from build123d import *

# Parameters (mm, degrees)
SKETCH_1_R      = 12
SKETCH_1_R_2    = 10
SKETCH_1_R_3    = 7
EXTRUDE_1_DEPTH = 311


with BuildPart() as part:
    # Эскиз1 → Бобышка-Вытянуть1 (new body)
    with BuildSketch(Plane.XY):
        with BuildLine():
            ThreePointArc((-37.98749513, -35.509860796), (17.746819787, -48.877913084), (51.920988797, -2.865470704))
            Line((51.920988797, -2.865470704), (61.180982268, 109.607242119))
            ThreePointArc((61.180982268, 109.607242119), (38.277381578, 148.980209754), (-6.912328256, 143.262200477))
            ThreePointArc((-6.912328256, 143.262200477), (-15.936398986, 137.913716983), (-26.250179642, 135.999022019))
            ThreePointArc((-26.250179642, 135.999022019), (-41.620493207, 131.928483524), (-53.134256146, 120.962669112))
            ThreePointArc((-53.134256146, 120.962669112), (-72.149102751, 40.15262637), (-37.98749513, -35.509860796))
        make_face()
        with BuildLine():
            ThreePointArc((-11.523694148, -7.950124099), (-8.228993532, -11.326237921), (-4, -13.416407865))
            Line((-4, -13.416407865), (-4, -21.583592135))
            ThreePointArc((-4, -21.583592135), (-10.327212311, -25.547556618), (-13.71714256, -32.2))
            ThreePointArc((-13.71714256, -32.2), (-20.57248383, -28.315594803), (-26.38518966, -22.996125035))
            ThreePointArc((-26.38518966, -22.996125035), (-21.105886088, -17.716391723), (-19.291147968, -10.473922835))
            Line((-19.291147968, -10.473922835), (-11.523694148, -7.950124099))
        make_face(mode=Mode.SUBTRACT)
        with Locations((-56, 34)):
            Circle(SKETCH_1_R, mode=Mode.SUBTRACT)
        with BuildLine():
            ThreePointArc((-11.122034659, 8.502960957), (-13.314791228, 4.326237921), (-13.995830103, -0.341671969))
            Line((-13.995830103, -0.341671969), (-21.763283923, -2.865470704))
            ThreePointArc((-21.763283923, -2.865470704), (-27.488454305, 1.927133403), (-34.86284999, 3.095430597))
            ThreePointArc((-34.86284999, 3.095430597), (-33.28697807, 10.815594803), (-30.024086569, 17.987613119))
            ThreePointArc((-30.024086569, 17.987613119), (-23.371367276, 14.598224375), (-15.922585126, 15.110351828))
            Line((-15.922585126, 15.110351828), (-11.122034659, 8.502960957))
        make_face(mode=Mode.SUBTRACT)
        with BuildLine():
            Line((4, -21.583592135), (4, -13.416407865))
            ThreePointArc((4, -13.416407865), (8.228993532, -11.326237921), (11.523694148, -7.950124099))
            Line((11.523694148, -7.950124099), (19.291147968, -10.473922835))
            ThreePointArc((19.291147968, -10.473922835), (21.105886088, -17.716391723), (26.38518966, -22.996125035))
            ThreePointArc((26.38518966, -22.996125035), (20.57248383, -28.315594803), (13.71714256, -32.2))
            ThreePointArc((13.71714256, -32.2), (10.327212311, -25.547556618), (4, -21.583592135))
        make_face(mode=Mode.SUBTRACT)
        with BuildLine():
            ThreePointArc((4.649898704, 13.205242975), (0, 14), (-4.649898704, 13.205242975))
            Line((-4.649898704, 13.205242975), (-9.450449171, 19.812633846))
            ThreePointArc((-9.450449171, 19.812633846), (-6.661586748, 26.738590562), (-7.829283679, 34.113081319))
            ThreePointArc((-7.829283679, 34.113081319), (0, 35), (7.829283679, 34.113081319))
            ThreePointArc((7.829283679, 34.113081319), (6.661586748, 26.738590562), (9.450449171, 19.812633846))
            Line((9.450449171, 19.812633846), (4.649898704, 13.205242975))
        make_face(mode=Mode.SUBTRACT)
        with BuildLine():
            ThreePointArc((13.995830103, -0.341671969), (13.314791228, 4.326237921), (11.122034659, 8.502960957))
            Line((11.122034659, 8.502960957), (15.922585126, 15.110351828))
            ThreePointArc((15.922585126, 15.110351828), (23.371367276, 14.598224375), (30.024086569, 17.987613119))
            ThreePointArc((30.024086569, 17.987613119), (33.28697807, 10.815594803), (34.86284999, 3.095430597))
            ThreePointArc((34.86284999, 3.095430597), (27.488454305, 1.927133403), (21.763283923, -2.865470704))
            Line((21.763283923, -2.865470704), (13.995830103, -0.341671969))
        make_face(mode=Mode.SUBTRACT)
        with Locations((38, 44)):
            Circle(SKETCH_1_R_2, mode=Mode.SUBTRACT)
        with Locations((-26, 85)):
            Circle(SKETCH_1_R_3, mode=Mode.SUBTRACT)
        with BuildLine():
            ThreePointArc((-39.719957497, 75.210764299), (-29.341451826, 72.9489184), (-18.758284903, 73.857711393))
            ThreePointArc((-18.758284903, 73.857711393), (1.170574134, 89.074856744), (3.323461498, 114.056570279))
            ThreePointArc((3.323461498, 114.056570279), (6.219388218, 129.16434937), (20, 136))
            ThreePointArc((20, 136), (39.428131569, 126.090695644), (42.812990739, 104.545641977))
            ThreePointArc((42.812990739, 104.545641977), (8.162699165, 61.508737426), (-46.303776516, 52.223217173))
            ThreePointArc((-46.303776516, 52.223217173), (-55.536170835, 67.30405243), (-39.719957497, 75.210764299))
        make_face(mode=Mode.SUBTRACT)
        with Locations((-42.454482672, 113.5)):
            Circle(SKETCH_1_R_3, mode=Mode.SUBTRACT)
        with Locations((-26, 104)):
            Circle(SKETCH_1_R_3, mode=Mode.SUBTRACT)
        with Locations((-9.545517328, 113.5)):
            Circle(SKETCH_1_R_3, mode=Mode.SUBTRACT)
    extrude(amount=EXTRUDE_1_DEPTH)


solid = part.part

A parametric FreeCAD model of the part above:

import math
import FreeCAD as App
import Part
import Sketcher
Q = App.Units.Quantity

doc = App.newDocument("Part")
body = doc.addObject("PartDesign::Body", "Body")

sketch1 = body.newObject("Sketcher::SketchObject", "Sketch")
sketch1.AttachmentSupport = (doc.getObject("XY_Plane"), [""])
sketch1.MapMode = "FlatFace"
sketch1.addGeometry([
    Part.ArcOfCircle(Part.Circle(App.Vector(0, 0, 0), App.Vector(0, 0, 1), 52), math.radians(-137), math.radians(-3)),
    Part.LineSegment(App.Vector(52, -3, 0), App.Vector(61, 110, 0)),
    Part.ArcOfCircle(Part.Circle(App.Vector(20, 112, 0), App.Vector(0, 0, 1), 41), math.radians(-3), math.radians(131)),
    Part.ArcOfCircle(Part.Circle(App.Vector(-26, 166, 0), App.Vector(0, 0, 1), 30), math.radians(-90), math.radians(-49)),
    Part.ArcOfCircle(Part.Circle(App.Vector(-26, 104, 0), App.Vector(0, 0, 1), 32), math.radians(90), math.radians(148)),
    Part.ArcOfCircle(Part.Circle(App.Vector(56, 53, 0), App.Vector(0, 0, 1), 129), math.radians(148), math.radians(223)),
    Part.LineSegment(App.Vector(-19, -10, 0), App.Vector(-12, -8, 0)),
    Part.ArcOfCircle(Part.Circle(App.Vector(0, 0, 0), App.Vector(0, 0, 1), 14), math.radians(-145), math.radians(-107)),
    Part.LineSegment(App.Vector(-4, -13, 0), App.Vector(-4, -22, 0)),
    Part.ArcOfCircle(Part.Circle(App.Vector(0, -35, 0), App.Vector(0, 0, 1), 14), math.radians(107), math.radians(168)),
    Part.ArcOfCircle(Part.Circle(App.Vector(0, 0, 0), App.Vector(0, 0, 1), 35), math.radians(-139), math.radians(-113)),
    Part.ArcOfCircle(Part.Circle(App.Vector(-33, -11, 0), App.Vector(0, 0, 1), 14), math.radians(-60), math.radians(1)),
    Part.LineSegment(App.Vector(-16, 15, 0), App.Vector(-11, 9, 0)),
    Part.ArcOfCircle(Part.Circle(App.Vector(0, 0, 0), App.Vector(0, 0, 1), 14), math.radians(143), math.radians(181)),
    Part.LineSegment(App.Vector(-14, 0, 0), App.Vector(-22, -3, 0)),
    Part.ArcOfCircle(Part.Circle(App.Vector(-33, -11, 0), App.Vector(0, 0, 1), 14), math.radians(35), math.radians(96)),
    Part.ArcOfCircle(Part.Circle(App.Vector(0, 0, 0), App.Vector(0, 0, 1), 35), math.radians(149), math.radians(175)),
    Part.ArcOfCircle(Part.Circle(App.Vector(-21, 28, 0), App.Vector(0, 0, 1), 14), math.radians(-132), math.radians(-71)),
    Part.Circle(App.Vector(-56, 34, 0), App.Vector(0, 0, 1), 12),
    Part.ArcOfCircle(Part.Circle(App.Vector(0, -35, 0), App.Vector(0, 0, 1), 14), math.radians(12), math.radians(73)),
    Part.LineSegment(App.Vector(4, -22, 0), App.Vector(4, -13, 0)),
    Part.ArcOfCircle(Part.Circle(App.Vector(0, 0, 0), App.Vector(0, 0, 1), 14), math.radians(-73), math.radians(-35)),
    Part.LineSegment(App.Vector(12, -8, 0), App.Vector(19, -10, 0)),
    Part.ArcOfCircle(Part.Circle(App.Vector(33, -11, 0), App.Vector(0, 0, 1), 14), math.radians(179), math.radians(240)),
    Part.ArcOfCircle(Part.Circle(App.Vector(0, 0, 0), App.Vector(0, 0, 1), 35), math.radians(-67), math.radians(-41)),
    Part.LineSegment(App.Vector(22, -3, 0), App.Vector(14, 0, 0)),
    Part.ArcOfCircle(Part.Circle(App.Vector(0, 0, 0), App.Vector(0, 0, 1), 14), math.radians(-1), math.radians(37)),
    Part.LineSegment(App.Vector(11, 9, 0), App.Vector(16, 15, 0)),
    Part.ArcOfCircle(Part.Circle(App.Vector(21, 28, 0), App.Vector(0, 0, 1), 14), math.radians(-109), math.radians(-48)),
    Part.ArcOfCircle(Part.Circle(App.Vector(0, 0, 0), App.Vector(0, 0, 1), 35), math.radians(5), math.radians(31)),
    Part.ArcOfCircle(Part.Circle(App.Vector(33, -11, 0), App.Vector(0, 0, 1), 14), math.radians(84), math.radians(145)),
    Part.LineSegment(App.Vector(9, 20, 0), App.Vector(5, 13, 0)),
    Part.ArcOfCircle(Part.Circle(App.Vector(0, 0, 0), App.Vector(0, 0, 1), 14), math.radians(71), math.radians(109)),
    Part.LineSegment(App.Vector(-5, 13, 0), App.Vector(-9, 20, 0)),
    Part.ArcOfCircle(Part.Circle(App.Vector(-21, 28, 0), App.Vector(0, 0, 1), 14), math.radians(-37), math.radians(24)),
    Part.ArcOfCircle(Part.Circle(App.Vector(0, 0, 0), App.Vector(0, 0, 1), 35), math.radians(77), math.radians(103)),
    Part.ArcOfCircle(Part.Circle(App.Vector(21, 28, 0), App.Vector(0, 0, 1), 14), math.radians(156), math.radians(217)),
    Part.Circle(App.Vector(38, 44, 0), App.Vector(0, 0, 1), 10),
    Part.Circle(App.Vector(-26, 85, 0), App.Vector(0, 0, 1), 7),
    Part.Circle(App.Vector(-42, 114, 0), App.Vector(0, 0, 1), 7),
    Part.Circle(App.Vector(-26, 104, 0), App.Vector(0, 0, 1), 7),
    Part.ArcOfCircle(Part.Circle(App.Vector(-44, 64, 0), App.Vector(0, 0, 1), 12), math.radians(69), math.radians(259)),
    Part.ArcOfCircle(Part.Circle(App.Vector(-27, 108, 0), App.Vector(0, 0, 1), 36), math.radians(-111), math.radians(-76)),
    Part.ArcOfCircle(Part.Circle(App.Vector(-26, 104, 0), App.Vector(0, 0, 1), 31), math.radians(-76), math.radians(19)),
    Part.ArcOfCircle(Part.Circle(App.Vector(20, 119, 0), App.Vector(0, 0, 1), 17), math.radians(90), math.radians(196)),
    Part.ArcOfCircle(Part.Circle(App.Vector(20, 112, 0), App.Vector(0, 0, 1), 24), math.radians(-18), math.radians(90)),
    Part.ArcOfCircle(Part.Circle(App.Vector(-31, 129, 0), App.Vector(0, 0, 1), 78), math.radians(-101), math.radians(-18)),
    Part.Circle(App.Vector(-10, 114, 0), App.Vector(0, 0, 1), 7),
], False)
sketch1.addConstraint([
    Sketcher.Constraint("Coincident", 0, 2, 1, 1),
    Sketcher.Constraint("Coincident", 1, 2, 2, 1),
    Sketcher.Constraint("Tangent", 2, 2, 3, 2),
    Sketcher.Constraint("Tangent", 3, 1, 4, 1),
    Sketcher.Constraint("Tangent", 4, 2, 5, 1),
    Sketcher.Constraint("Tangent", 5, 2, 0, 1),
    Sketcher.Constraint("Coincident", 6, 2, 7, 1),
    Sketcher.Constraint("Coincident", 7, 2, 8, 1),
    Sketcher.Constraint("Coincident", 8, 2, 9, 1),
    Sketcher.Constraint("Coincident", 9, 2, 10, 2),
    Sketcher.Constraint("Coincident", 10, 1, 11, 1),
    Sketcher.Constraint("Coincident", 11, 2, 6, 1),
    Sketcher.Constraint("Coincident", 12, 2, 13, 1),
    Sketcher.Constraint("Coincident", 13, 2, 14, 1),
    Sketcher.Constraint("Coincident", 14, 2, 15, 1),
    Sketcher.Constraint("Coincident", 15, 2, 16, 2),
    Sketcher.Constraint("Coincident", 16, 1, 17, 1),
    Sketcher.Constraint("Coincident", 17, 2, 12, 1),
    Sketcher.Constraint("Coincident", 19, 2, 20, 1),
    Sketcher.Constraint("Coincident", 20, 2, 21, 1),
    Sketcher.Constraint("Coincident", 21, 2, 22, 1),
    Sketcher.Constraint("Coincident", 22, 2, 23, 1),
    Sketcher.Constraint("Coincident", 23, 2, 24, 2),
    Sketcher.Constraint("Coincident", 24, 1, 19, 1),
    Sketcher.Constraint("Coincident", 25, 2, 26, 1),
    Sketcher.Constraint("Coincident", 26, 2, 27, 1),
    Sketcher.Constraint("Coincident", 27, 2, 28, 1),
    Sketcher.Constraint("Coincident", 28, 2, 29, 2),
    Sketcher.Constraint("Coincident", 29, 1, 30, 1),
    Sketcher.Constraint("Coincident", 30, 2, 25, 1),
    Sketcher.Constraint("Coincident", 31, 2, 32, 1),
    Sketcher.Constraint("Coincident", 32, 2, 33, 1),
    Sketcher.Constraint("Coincident", 33, 2, 34, 1),
    Sketcher.Constraint("Coincident", 34, 2, 35, 2),
    Sketcher.Constraint("Coincident", 35, 1, 36, 1),
    Sketcher.Constraint("Coincident", 36, 2, 31, 1),
    Sketcher.Constraint("Tangent", 41, 1, 42, 1),
    Sketcher.Constraint("Tangent", 42, 2, 43, 1),
    Sketcher.Constraint("Coincident", 43, 2, 44, 2),
    Sketcher.Constraint("Tangent", 44, 1, 45, 2),
    Sketcher.Constraint("Tangent", 45, 1, 46, 2),
    Sketcher.Constraint("Tangent", 46, 1, 41, 2),
    Sketcher.Constraint("Vertical", 8),
    Sketcher.Constraint("Vertical", 20),
    Sketcher.Constraint("Coincident", 0, 3, -1, 1),
    Sketcher.Constraint("Coincident", 7, 3, -1, 1),
    Sketcher.Constraint("Coincident", 10, 3, -1, 1),
    Sketcher.Constraint("Coincident", 13, 3, -1, 1),
    Sketcher.Constraint("Coincident", 16, 3, -1, 1),
    Sketcher.Constraint("Coincident", 21, 3, -1, 1),
    Sketcher.Constraint("Coincident", 24, 3, -1, 1),
    Sketcher.Constraint("Coincident", 26, 3, -1, 1),
    Sketcher.Constraint("Coincident", 29, 3, -1, 1),
    Sketcher.Constraint("Coincident", 32, 3, -1, 1),
    Sketcher.Constraint("Coincident", 35, 3, -1, 1),
    Sketcher.Constraint("Coincident", 15, 3, 11, 3),
    Sketcher.Constraint("Coincident", 19, 3, 9, 3),
    Sketcher.Constraint("Coincident", 30, 3, 23, 3),
    Sketcher.Constraint("Coincident", 34, 3, 17, 3),
    Sketcher.Constraint("Coincident", 36, 3, 28, 3),
    Sketcher.Constraint("Coincident", 40, 3, 4, 3),
    Sketcher.Constraint("Coincident", 43, 3, 4, 3),
    Sketcher.Constraint("Coincident", 45, 3, 2, 3),
    Sketcher.Constraint("Equal", 7, 9),
    Sketcher.Constraint("Equal", 9, 11),
    Sketcher.Constraint("Equal", 11, 13),
    Sketcher.Constraint("Equal", 13, 15),
    Sketcher.Constraint("Equal", 10, 16),
    Sketcher.Constraint("Equal", 15, 17),
    Sketcher.Constraint("Equal", 17, 19),
    Sketcher.Constraint("Equal", 19, 21),
    Sketcher.Constraint("Equal", 21, 23),
    Sketcher.Constraint("Equal", 16, 24),
    Sketcher.Constraint("Equal", 23, 26),
    Sketcher.Constraint("Equal", 26, 28),
    Sketcher.Constraint("Equal", 24, 29),
    Sketcher.Constraint("Equal", 28, 30),
    Sketcher.Constraint("Equal", 30, 32),
    Sketcher.Constraint("Equal", 32, 34),
    Sketcher.Constraint("Equal", 29, 35),
    Sketcher.Constraint("Equal", 34, 36),
    Sketcher.Constraint("Equal", 38, 39),
    Sketcher.Constraint("Equal", 39, 40),
    Sketcher.Constraint("Equal", 18, 41),
    Sketcher.Constraint("Equal", 40, 47),
    Sketcher.Constraint("Symmetric", 11, 3, 23, 3, -2),
    Sketcher.Constraint("Symmetric", 17, 3, 28, 3, -2),
    Sketcher.Constraint("Symmetric", 8, 2, 19, 2, -2),
    Sketcher.Constraint("Parallel", 6, 14),
    Sketcher.Constraint("Parallel", 22, 25),
    Sketcher.Constraint("Parallel", 27, 31),
    Sketcher.Constraint("Parallel", 12, 33),
    Sketcher.Constraint("Horizontal", 39, 3, 47, 3),
    Sketcher.Constraint("Horizontal", 0, 2, 14, 2),
    Sketcher.Constraint("Horizontal", 6, 2, 21, 2),
    Sketcher.Constraint("Horizontal", 11, 2, 22, 2),
    Sketcher.Constraint("Horizontal", 13, 2, 25, 2),
    Sketcher.Constraint("Horizontal", 12, 2, 26, 2),
    Sketcher.Constraint("Horizontal", 17, 2, 27, 2),
    Sketcher.Constraint("Horizontal", 31, 2, 32, 2),
    Sketcher.Constraint("Vertical", 4, 3, 38, 3),
    Sketcher.Constraint("Vertical", 2, 3, 44, 3),
    Sketcher.Constraint("Equal", 6, 12),
    Sketcher.Constraint("Equal", 12, 14),
    Sketcher.Constraint("Equal", 27, 31),
    Sketcher.Constraint("Diameter", 18, Q("24 mm")),
    Sketcher.Constraint("Diameter", 37, Q("20 mm")),
    Sketcher.Constraint("Diameter", 38, Q("14 mm")),
    Sketcher.Constraint("Radius", 0, Q("52 mm")),
    Sketcher.Constraint("Radius", 3, Q("30 mm")),
    Sketcher.Constraint("Radius", 4, Q("32 mm")),
    Sketcher.Constraint("Radius", 5, Q("129 mm")),
    Sketcher.Constraint("Radius", 7, Q("14 mm")),
    Sketcher.Constraint("Radius", 10, Q("35 mm")),
    Sketcher.Constraint("Radius", 43, Q("31 mm")),
    Sketcher.Constraint("Radius", 45, Q("24 mm")),
    Sketcher.Constraint("Radius", 46, Q("78 mm")),
    Sketcher.Constraint("Angle", 6, Q("18 deg")),
    Sketcher.Constraint("Angle", 12, Q("-54 deg")),
    Sketcher.Constraint("DistanceX", -1, 1, 2, 3, Q("20 mm")),
    Sketcher.Constraint("DistanceY", -1, 1, 2, 3, Q("112 mm")),
    Sketcher.Constraint("DistanceX", 4, 3, -1, 1, Q("26 mm")),
    Sketcher.Constraint("DistanceY", -1, 1, 4, 3, Q("104 mm")),
    Sketcher.Constraint("DistanceY", 9, 3, -1, 1, Q("35 mm")),
    Sketcher.Constraint("DistanceX", 18, 3, -1, 1, Q("56 mm")),
    Sketcher.Constraint("DistanceY", -1, 1, 18, 3, Q("34 mm")),
    Sketcher.Constraint("DistanceX", -1, 1, 37, 3, Q("38 mm")),
    Sketcher.Constraint("DistanceY", -1, 1, 37, 3, Q("44 mm")),
    Sketcher.Constraint("DistanceY", -1, 1, 38, 3, Q("85 mm")),
    Sketcher.Constraint("DistanceX", 41, 3, -1, 1, Q("44 mm")),
    Sketcher.Constraint("DistanceY", -1, 1, 41, 3, Q("64 mm")),
    Sketcher.Constraint("DistanceX", 7, 2, -1, 1, Q("4 mm")),
    Sketcher.Constraint("DistanceY", -1, 1, 39, 3, Q("113.5 mm")),
    Sketcher.Constraint("Radius", 42, Q("35.511771 mm")),
    Sketcher.Constraint("Radius", 44, Q("17.308622 mm")),
    Sketcher.Constraint("Radius", 2, Q("41.250437 mm")),
    Sketcher.Constraint("DistanceX", -1, 1, 31, 2, Q("4.649899 mm")),
    Sketcher.Constraint("Distance", 1, Q("112.853261 mm")),
    Sketcher.Constraint("DistanceX", 11, 3, -1, 1, Q("33.286978 mm")),
    Sketcher.Constraint("DistanceX", -1, 1, 0, 2, Q("51.920989 mm")),
    Sketcher.Constraint("DistanceX", 10, 1, -1, 1, Q("26.38519 mm")),
    Sketcher.Constraint("DistanceY", -1, 1, 12, 2, Q("8.502961 mm")),
    Sketcher.Constraint("DistanceX", 39, 3, -1, 1, Q("42.454483 mm")),
    Sketcher.Constraint("DistanceX", 47, 3, -1, 1, Q("9.545517 mm")),
])
pad1 = body.newObject("PartDesign::Pad", "Pad")
pad1.Profile = sketch1
pad1.Length = 311

doc.recompute()
